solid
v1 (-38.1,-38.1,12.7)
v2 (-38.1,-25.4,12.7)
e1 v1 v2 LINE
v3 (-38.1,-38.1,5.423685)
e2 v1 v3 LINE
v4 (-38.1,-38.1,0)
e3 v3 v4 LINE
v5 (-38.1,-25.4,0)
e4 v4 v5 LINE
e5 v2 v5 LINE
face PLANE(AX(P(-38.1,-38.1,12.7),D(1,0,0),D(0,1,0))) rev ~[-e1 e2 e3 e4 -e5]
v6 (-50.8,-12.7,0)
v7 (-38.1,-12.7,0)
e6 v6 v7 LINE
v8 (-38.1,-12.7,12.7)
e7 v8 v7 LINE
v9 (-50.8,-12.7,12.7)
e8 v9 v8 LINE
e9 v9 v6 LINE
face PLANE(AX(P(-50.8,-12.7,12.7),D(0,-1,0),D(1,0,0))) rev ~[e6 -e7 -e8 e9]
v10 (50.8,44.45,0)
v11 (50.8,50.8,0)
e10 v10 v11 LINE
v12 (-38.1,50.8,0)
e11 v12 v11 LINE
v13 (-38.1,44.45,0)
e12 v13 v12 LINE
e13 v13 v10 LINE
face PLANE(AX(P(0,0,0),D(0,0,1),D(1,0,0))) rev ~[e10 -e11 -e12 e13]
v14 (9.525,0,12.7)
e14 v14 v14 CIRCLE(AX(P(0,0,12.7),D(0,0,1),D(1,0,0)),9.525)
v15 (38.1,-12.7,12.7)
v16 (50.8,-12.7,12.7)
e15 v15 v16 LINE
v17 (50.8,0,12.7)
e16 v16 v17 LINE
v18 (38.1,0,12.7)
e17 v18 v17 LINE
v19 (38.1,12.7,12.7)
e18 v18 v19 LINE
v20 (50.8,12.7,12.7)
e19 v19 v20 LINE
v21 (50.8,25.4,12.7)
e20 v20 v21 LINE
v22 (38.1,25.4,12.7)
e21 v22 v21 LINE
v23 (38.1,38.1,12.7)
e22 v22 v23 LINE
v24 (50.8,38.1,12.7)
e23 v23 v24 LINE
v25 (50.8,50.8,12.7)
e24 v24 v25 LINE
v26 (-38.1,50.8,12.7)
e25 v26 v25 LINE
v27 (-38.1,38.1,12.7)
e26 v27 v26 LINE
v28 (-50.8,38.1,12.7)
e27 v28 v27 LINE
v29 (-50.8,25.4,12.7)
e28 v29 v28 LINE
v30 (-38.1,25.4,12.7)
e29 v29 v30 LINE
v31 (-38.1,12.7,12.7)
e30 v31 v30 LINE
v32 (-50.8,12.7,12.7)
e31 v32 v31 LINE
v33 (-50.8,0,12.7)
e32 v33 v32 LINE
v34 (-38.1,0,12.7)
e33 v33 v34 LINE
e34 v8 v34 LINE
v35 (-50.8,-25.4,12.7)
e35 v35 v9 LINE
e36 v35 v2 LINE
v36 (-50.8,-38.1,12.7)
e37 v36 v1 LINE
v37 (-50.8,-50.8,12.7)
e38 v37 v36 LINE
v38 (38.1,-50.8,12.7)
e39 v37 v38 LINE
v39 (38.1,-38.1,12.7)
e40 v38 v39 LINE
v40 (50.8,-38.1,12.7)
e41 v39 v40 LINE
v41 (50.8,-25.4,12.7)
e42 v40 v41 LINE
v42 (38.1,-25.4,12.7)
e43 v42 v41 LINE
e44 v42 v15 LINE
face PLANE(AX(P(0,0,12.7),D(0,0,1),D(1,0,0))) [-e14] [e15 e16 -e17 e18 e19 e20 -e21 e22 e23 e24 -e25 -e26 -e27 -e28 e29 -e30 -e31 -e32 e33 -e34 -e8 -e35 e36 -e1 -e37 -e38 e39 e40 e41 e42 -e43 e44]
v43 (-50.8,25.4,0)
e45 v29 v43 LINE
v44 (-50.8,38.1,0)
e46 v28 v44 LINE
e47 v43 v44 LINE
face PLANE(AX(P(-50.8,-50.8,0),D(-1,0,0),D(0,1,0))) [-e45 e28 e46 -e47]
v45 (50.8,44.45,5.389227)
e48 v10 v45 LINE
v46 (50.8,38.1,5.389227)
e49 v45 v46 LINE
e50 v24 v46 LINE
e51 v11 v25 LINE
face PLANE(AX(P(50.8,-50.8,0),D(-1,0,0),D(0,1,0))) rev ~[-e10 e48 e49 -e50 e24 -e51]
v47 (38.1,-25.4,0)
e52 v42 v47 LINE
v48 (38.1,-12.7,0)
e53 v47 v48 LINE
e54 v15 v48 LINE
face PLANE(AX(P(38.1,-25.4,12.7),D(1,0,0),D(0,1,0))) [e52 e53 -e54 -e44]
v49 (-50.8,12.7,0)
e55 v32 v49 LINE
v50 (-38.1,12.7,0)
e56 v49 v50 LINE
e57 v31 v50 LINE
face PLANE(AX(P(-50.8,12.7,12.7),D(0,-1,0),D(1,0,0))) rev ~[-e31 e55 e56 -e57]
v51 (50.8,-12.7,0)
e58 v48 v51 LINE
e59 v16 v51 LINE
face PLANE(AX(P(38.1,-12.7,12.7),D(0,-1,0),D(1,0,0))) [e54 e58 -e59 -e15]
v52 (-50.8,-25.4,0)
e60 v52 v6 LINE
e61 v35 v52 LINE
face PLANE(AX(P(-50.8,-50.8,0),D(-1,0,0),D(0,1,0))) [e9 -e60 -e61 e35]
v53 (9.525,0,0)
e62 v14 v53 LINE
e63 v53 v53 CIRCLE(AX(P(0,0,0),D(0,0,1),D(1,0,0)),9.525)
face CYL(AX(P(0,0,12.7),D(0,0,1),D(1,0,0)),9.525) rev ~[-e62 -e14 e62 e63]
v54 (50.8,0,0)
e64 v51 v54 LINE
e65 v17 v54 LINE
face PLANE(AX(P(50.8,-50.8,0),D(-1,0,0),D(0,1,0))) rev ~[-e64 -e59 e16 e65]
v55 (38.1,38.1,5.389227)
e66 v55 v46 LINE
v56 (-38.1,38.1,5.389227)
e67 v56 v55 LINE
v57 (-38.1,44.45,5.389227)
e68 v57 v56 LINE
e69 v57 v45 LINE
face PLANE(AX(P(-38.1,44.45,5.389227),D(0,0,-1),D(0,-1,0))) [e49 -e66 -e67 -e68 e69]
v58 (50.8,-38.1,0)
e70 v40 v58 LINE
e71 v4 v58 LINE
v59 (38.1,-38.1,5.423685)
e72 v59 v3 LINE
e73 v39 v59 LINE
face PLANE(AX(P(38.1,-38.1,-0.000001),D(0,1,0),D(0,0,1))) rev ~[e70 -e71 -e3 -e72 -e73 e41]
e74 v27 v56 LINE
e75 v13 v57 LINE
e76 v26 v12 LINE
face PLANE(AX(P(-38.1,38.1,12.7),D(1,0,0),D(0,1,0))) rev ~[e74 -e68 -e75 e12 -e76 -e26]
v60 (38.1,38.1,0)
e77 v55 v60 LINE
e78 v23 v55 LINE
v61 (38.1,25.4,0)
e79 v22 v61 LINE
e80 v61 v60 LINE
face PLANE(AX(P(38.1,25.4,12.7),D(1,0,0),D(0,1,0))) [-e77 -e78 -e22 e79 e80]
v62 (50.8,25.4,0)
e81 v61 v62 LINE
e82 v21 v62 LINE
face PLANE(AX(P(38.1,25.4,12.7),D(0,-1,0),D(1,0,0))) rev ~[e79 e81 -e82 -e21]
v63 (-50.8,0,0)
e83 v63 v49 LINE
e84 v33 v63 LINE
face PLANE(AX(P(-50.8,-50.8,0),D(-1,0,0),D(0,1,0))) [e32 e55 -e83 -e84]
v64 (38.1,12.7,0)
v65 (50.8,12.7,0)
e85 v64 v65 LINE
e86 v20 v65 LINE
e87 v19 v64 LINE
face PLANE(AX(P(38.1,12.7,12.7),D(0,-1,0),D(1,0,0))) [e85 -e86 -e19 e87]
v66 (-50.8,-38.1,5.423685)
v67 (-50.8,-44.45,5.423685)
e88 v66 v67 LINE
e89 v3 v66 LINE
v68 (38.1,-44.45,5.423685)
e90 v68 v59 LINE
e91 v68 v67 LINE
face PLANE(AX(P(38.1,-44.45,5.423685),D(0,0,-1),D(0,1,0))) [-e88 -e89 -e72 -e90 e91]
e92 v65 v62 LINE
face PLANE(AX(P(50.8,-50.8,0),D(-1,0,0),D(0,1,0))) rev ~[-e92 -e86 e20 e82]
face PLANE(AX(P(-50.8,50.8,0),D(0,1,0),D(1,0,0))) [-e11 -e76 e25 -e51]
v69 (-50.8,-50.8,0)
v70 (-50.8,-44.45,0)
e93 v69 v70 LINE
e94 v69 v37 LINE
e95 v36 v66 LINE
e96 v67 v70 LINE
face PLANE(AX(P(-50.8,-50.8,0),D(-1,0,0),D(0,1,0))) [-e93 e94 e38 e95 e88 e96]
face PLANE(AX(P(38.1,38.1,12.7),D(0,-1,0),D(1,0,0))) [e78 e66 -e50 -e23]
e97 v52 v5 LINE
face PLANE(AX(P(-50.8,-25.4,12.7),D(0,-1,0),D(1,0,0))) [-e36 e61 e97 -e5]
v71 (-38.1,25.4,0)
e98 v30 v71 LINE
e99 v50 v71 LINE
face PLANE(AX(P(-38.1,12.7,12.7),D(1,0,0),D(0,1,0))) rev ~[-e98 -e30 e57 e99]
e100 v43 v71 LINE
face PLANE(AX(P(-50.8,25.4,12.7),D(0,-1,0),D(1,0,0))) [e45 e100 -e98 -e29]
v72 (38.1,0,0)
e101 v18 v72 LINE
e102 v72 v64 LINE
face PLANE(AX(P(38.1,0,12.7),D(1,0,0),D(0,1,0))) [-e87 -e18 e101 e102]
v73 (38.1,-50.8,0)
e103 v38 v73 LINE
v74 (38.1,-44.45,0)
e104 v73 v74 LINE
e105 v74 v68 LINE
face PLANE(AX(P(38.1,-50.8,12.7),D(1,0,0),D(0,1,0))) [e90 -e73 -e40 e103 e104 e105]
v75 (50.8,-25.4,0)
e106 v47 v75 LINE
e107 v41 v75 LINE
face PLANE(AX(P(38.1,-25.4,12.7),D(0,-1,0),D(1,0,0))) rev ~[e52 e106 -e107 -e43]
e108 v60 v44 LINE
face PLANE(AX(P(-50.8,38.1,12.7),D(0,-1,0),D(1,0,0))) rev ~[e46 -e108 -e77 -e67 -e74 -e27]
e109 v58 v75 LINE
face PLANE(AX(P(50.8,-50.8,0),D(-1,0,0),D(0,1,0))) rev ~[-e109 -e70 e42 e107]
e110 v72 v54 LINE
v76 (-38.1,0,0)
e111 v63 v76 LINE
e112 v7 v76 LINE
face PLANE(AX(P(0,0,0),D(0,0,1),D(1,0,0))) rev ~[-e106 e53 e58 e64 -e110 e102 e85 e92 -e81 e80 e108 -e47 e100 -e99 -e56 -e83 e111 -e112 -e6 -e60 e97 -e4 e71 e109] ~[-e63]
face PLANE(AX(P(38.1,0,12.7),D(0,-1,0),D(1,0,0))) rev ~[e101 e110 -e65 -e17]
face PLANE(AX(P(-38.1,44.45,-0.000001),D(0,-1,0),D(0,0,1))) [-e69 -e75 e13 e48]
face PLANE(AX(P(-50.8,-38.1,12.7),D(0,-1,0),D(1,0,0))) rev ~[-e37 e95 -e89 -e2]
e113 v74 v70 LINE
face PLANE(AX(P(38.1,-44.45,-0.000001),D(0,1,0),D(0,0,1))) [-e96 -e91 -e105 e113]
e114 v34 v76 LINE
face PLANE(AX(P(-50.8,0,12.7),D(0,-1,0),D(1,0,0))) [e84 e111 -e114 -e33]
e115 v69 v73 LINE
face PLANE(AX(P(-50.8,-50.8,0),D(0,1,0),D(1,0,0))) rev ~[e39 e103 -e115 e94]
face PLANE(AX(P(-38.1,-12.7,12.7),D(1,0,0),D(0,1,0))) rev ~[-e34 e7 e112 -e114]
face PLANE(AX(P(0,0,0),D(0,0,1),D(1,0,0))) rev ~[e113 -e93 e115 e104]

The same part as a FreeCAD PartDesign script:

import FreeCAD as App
import Part
import Sketcher

V = App.Vector
Q = App.Units.Quantity


def add_polygon(sketch, points):
    """Adds a closed chain of lines whose ends are joined by coincident constraints."""
    first, n = sketch.GeometryCount, len(points)
    for a, b in zip(points, points[1:] + points[:1]):
        sketch.addGeometry(Part.LineSegment(App.Vector(*a, 0), App.Vector(*b, 0)), False)
    for i in range(n):
        sketch.addConstraint(Sketcher.Constraint("Coincident", first + i, 2, first + (i + 1) % n, 1))

doc = App.newDocument("Part")
body = doc.addObject("PartDesign::Body", "Body")

# Sketch on XY plane
sketch1 = body.newObject("Sketcher::SketchObject", "Sketch")
sketch1.AttachmentSupport = (doc.getObject("XY_Plane"), [""])
sketch1.MapMode = "FlatFace"
add_polygon(sketch1, [(-51, 51), (-51, -51), (51, -51), (51, 51)])  # lines 0-3
sketch1.addConstraint([
    Sketcher.Constraint("Vertical", 0),
    Sketcher.Constraint("Horizontal", 1),
    Sketcher.Constraint("Vertical", 2),
    Sketcher.Constraint("Horizontal", 3),
    Sketcher.Constraint("Symmetric", 0, 2, 2, 2, -1, 1),
    Sketcher.Constraint("Equal", 3, 0),
    Sketcher.Constraint("DistanceX", 1, 1, 1, 2, Q("4 in")),
])
pad1 = body.newObject("PartDesign::Pad", "Pad")
pad1.Profile = sketch1
pad1.Length = Q("0.5 in")

# Sketch on XY plane
sketch2 = body.newObject("Sketcher::SketchObject", "Sketch001")
sketch2.AttachmentSupport = (doc.getObject("XY_Plane"), [""])
sketch2.MapMode = "FlatFace"
sketch2.AttachmentOffset = App.Placement(V(0, 0, 0.5 * 25.4), App.Rotation())
add_polygon(sketch2, [(-51, 25), (-51, 13), (-38, 13), (-38, 25)])  # lines 0-3
add_polygon(sketch2, [(-51, 51), (-51, 38), (-38, 38), (-38, 51)])  # lines 4-7
add_polygon(sketch2, [(-51, 0), (-51, -13), (-38, -13), (-38, 0)])  # lines 8-11
add_polygon(sketch2, [(-51, -25), (-51, -38), (-38, -38), (-38, -25)])  # lines 12-15
sketch2.addConstraint([
    Sketcher.Constraint("Vertical", 0),
    Sketcher.Constraint("Horizontal", 1),
    Sketcher.Constraint("Vertical", 2),
    Sketcher.Constraint("Horizontal", 3),
    Sketcher.Constraint("Vertical", 4),
    Sketcher.Constraint("Horizontal", 5),
    Sketcher.Constraint("Vertical", 6),
    Sketcher.Constraint("Horizontal", 7),
    Sketcher.Constraint("Vertical", 8),
    Sketcher.Constraint("Horizontal", 9),
    Sketcher.Constraint("Vertical", 10),
    Sketcher.Constraint("Horizontal", 11),
    Sketcher.Constraint("Vertical", 12),
    Sketcher.Constraint("Horizontal", 13),
    Sketcher.Constraint("Vertical", 14),
    Sketcher.Constraint("Horizontal", 15),
    Sketcher.Constraint("Symmetric", 0, 2, 8, 2, -1),
    Sketcher.Constraint("Symmetric", 4, 2, 12, 2, -1),
    Sketcher.Constraint("Symmetric", 2, 2, 14, 2, -1),
    Sketcher.Constraint("PointOnObject", 10, 2, -1),
    Sketcher.Constraint("Vertical", 3, 2, 4, 2),
    Sketcher.Constraint("Vertical", 2, 2, 5, 2),
    Sketcher.Constraint("Vertical", 6, 2, 9, 2),
    Sketcher.Constraint("Equal", 15, 0),
    Sketcher.Constraint("Equal", 2, 4),
    Sketcher.Constraint("Equal", 6, 8),
    Sketcher.Constraint("Equal", 10, 12),
    Sketcher.Constraint("DistanceX", 1, 1, 1, 2, Q("0.5 in")),
    Sketcher.Constraint("DistanceX", 0, 2, -1, 1, Q("2 in")),
])
pocket1 = body.newObject("PartDesign::Pocket", "Pocket")
pocket1.Profile = sketch2
pocket1.Type = "ThroughAll"

# Sketch on XY plane
sketch3 = body.newObject("Sketcher::SketchObject", "Sketch002")
sketch3.AttachmentSupport = (doc.getObject("XY_Plane"), [""])
sketch3.MapMode = "FlatFace"
sketch3.AttachmentOffset = App.Placement(V(0, 0, 0.5 * 25.4), App.Rotation())
add_polygon(sketch3, [(38, 38), (38, 25), (51, 25), (51, 38)])  # lines 0-3
add_polygon(sketch3, [(38, 13), (38, 0), (51, 0), (51, 13)])  # lines 4-7
add_polygon(sketch3, [(38, -13), (38, -25), (51, -25), (51, -13)])  # lines 8-11
add_polygon(sketch3, [(38, -38), (38, -51), (51, -51), (51, -38)])  # lines 12-15
sketch3.addConstraint([
    Sketcher.Constraint("Vertical", 0),
    Sketcher.Constraint("Horizontal", 1),
    Sketcher.Constraint("Vertical", 2),
    Sketcher.Constraint("Horizontal", 3),
    Sketcher.Constraint("Vertical", 4),
    Sketcher.Constraint("Horizontal", 5),
    Sketcher.Constraint("Vertical", 6),
    Sketcher.Constraint("Horizontal", 7),
    Sketcher.Constraint("Vertical", 8),
    Sketcher.Constraint("Horizontal", 9),
    Sketcher.Constraint("Vertical", 10),
    Sketcher.Constraint("Horizontal", 11),
    Sketcher.Constraint("Vertical", 12),
    Sketcher.Constraint("Horizontal", 13),
    Sketcher.Constraint("Vertical", 14),
    Sketcher.Constraint("Horizontal", 15),
    Sketcher.Constraint("Symmetric", 0, 2, 8, 2, -1),
    Sketcher.Constraint("Symmetric", 6, 2, 10, 2, -1),
    Sketcher.Constraint("Symmetric", 2, 2, 14, 2, -1),
    Sketcher.Constraint("PointOnObject", 4, 2, -1),
    Sketcher.Constraint("Vertical", 3, 2, 4, 2),
    Sketcher.Constraint("Vertical", 2, 2, 5, 2),
    Sketcher.Constraint("Vertical", 11, 2, 12, 2),
    Sketcher.Constraint("Equal", 15, 0),
    Sketcher.Constraint("Equal", 2, 4),
    Sketcher.Constraint("Equal", 6, 8),
    Sketcher.Constraint("Equal", 10, 12),
    Sketcher.Constraint("DistanceX", 1, 1, 1, 2, Q("0.5 in")),
    Sketcher.Constraint("DistanceX", -1, 1, 1, 2, Q("2 in")),
])
pocket2 = body.newObject("PartDesign::Pocket", "Pocket001")
pocket2.Profile = sketch3
pocket2.Type = "ThroughAll"

# Sketch on YZ plane
sketch4 = body.newObject("Sketcher::SketchObject", "Sketch003")
sketch4.AttachmentSupport = (doc.getObject("YZ_Plane"), [""])
sketch4.MapMode = "FlatFace"
sketch4.AttachmentOffset = App.Placement(V(0, 0, 1.5 * 25.4), App.Rotation())
add_polygon(sketch4, [(-44, 5), (-44, 0), (-38, 0), (-38, 5)])  # lines 0-3
sketch4.addConstraint([
    Sketcher.Constraint("Vertical", 0),
    Sketcher.Constraint("Horizontal", 1),
    Sketcher.Constraint("Vertical", 2),
    Sketcher.Constraint("Horizontal", 3),
    Sketcher.Constraint("PointOnObject", 0, 2, -1),
    Sketcher.Constraint("DistanceX", 1, 1, 1, 2, Q("0.25 in")),
    Sketcher.Constraint("DistanceX", 1, 2, -1, 1, Q("1.5 in")),
    Sketcher.Constraint("DistanceY", 0, 2, 0, 1, 5.423685),
])
pocket3 = body.newObject("PartDesign::Pocket", "Pocket002")
pocket3.Profile = sketch4
pocket3.Type = "ThroughAll"

# Sketch on YZ plane
sketch5 = body.newObject("Sketcher::SketchObject", "Sketch004")
sketch5.AttachmentSupport = (doc.getObject("YZ_Plane"), [""])
sketch5.MapMode = "FlatFace"
sketch5.AttachmentOffset = App.Placement(V(0, 0, -1.5 * 25.4), App.Rotation())
add_polygon(sketch5, [(44, 5), (44, 0), (38, 0), (38, 5)])  # lines 0-3
sketch5.addConstraint([
    Sketcher.Constraint("Vertical", 0),
    Sketcher.Constraint("Horizontal", 1),
    Sketcher.Constraint("Vertical", 2),
    Sketcher.Constraint("Horizontal", 3),
    Sketcher.Constraint("PointOnObject", 0, 2, -1),
    Sketcher.Constraint("DistanceX", 1, 2, 1, 1, Q("0.25 in")),
    Sketcher.Constraint("DistanceX", -1, 1, 1, 2, Q("1.5 in")),
    Sketcher.Constraint("DistanceY", 0, 2, 0, 1, 5.389227),
])
pocket4 = body.newObject("PartDesign::Pocket", "Pocket003")
pocket4.Profile = sketch5
pocket4.Type = "ThroughAll"
pocket4.Reversed = True

# Sketch on XY plane
sketch6 = body.newObject("Sketcher::SketchObject", "Sketch005")
sketch6.AttachmentSupport = (doc.getObject("XY_Plane"), [""])
sketch6.MapMode = "FlatFace"
sketch6.AttachmentOffset = App.Placement(V(0, 0, 0.5 * 25.4), App.Rotation())
sketch6.addGeometry(Part.Circle(V(0, 0, 0), V(0, 0, 1), 10), False)
sketch6.addConstraint([
    Sketcher.Constraint("Coincident", 0, 3, -1, 1),
    Sketcher.Constraint("Diameter", 0, Q("0.75 in")),
])
pocket5 = body.newObject("PartDesign::Pocket", "Pocket004")
pocket5.Profile = sketch6
pocket5.Type = "ThroughAll"

doc.recompute()
